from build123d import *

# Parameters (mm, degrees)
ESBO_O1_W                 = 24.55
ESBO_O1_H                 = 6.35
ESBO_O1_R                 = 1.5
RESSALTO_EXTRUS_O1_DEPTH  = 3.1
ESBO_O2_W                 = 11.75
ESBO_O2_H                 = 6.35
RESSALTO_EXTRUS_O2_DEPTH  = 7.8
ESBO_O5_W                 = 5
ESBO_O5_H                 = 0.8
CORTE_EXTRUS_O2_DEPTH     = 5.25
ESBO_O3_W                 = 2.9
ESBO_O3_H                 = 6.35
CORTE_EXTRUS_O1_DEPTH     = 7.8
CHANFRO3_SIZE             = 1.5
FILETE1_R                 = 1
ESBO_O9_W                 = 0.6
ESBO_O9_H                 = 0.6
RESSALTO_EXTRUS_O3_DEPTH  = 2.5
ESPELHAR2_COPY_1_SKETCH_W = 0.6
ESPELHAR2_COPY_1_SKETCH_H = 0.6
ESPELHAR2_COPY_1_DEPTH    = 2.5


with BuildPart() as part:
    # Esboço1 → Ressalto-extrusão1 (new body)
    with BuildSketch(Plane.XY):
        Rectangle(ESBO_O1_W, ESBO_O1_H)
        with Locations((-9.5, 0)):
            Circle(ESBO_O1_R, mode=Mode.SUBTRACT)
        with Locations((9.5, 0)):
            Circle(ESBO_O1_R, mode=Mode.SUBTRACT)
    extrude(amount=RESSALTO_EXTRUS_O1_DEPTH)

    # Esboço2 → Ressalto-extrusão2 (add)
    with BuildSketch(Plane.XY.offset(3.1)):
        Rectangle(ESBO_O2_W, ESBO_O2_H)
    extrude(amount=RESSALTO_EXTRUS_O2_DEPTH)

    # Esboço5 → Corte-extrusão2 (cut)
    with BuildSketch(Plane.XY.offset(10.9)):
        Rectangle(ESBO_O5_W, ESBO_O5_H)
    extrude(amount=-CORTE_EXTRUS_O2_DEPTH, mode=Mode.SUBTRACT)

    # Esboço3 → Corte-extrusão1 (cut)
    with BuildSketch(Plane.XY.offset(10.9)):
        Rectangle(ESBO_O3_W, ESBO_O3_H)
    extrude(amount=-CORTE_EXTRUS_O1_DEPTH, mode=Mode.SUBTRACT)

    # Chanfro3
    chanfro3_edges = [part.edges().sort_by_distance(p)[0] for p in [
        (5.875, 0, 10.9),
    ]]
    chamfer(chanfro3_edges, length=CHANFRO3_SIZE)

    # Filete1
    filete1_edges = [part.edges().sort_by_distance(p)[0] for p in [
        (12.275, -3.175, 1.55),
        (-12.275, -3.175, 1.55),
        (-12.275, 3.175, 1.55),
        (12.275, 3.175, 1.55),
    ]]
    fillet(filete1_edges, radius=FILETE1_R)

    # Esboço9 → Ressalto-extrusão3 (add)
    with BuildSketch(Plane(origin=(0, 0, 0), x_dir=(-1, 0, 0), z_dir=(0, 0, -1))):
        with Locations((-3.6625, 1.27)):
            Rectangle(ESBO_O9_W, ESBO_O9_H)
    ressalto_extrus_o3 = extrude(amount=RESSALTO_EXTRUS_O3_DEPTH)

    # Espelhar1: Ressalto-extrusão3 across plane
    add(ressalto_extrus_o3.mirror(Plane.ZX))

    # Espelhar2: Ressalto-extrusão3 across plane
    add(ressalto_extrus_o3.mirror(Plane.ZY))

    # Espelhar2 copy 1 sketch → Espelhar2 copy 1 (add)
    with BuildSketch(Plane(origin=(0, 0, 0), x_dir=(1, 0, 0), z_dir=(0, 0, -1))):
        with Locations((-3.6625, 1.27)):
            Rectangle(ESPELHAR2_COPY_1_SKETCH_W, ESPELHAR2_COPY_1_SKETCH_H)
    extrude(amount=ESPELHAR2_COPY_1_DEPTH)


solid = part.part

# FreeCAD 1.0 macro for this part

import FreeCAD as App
import Part
import Sketcher


def edges_at(feature, points):
    """Names of the edges that pass closest to the given points."""
    edges = feature.Shape.Edges
    near = lambda p: min(range(len(edges)), key=lambda i: edges[i].distToShape(Part.Vertex(*p))[0])
    return sorted({f"Edge{near(p) + 1}" for p in points})


def add_polygon(sketch, points):
    """Adds a closed chain of lines whose ends are joined by coincident constraints."""
    first, n = sketch.GeometryCount, len(points)
    for a, b in zip(points, points[1:] + points[:1]):
        sketch.addGeometry(Part.LineSegment(App.Vector(*a, 0), App.Vector(*b, 0)), False)
    for i in range(n):
        sketch.addConstraint(Sketcher.Constraint("Coincident", first + i, 2, first + (i + 1) % n, 1))

doc = App.newDocument("Part")
body = doc.addObject("PartDesign::Body", "Body")

sketch1 = doc.addObject("Sketcher::SketchObject", "Sketch")
body.addObject(sketch1)
sketch1.AttachmentSupport = (doc.XY_Plane, [""])
sketch1.MapMode = "FlatFace"
add_polygon(sketch1, [(-12.3, 3.2), (-12.3, -3.2), (12.3, -3.2), (12.3, 3.2)])
sketch1.addGeometry(Part.Circle(App.Vector(-9.5, 0, 0), App.Vector(0, 0, 1), 1.5), False)
sketch1.addGeometry(Part.Circle(App.Vector(9.5, 0, 0), App.Vector(0, 0, 1), 1.5), False)
sketch1.addConstraint([
    Sketcher.Constraint("Vertical", 0),
    Sketcher.Constraint("Horizontal", 1),
    Sketcher.Constraint("Vertical", 2),
    Sketcher.Constraint("Horizontal", 3),
    Sketcher.Constraint("Equal", 4, 5),
    Sketcher.Constraint("Symmetric", 4, 3, 5, 3, -1, 1),
    Sketcher.Constraint("Symmetric", 0, 2, 2, 2, -1, 1),
    Sketcher.Constraint("PointOnObject", 4, 3, -1),
    Sketcher.Constraint("Diameter", 4, 3.0),
    Sketcher.Constraint("DistanceX", 4, 3, 5, 3, 19.0),
    Sketcher.Constraint("DistanceX", 1, 1, 1, 2, 24.55),
    Sketcher.Constraint("DistanceY", 0, 2, 0, 1, 6.35),
])
pad1 = doc.addObject("PartDesign::Pad", "Pad")
body.addObject(pad1)
pad1.Profile = sketch1
pad1.Length = 3.1

sketch2 = doc.addObject("Sketcher::SketchObject", "Sketch001")
body.addObject(sketch2)
sketch2.AttachmentSupport = (doc.XY_Plane, [""])
sketch2.MapMode = "FlatFace"
sketch2.AttachmentOffset = App.Placement(App.Vector(0, 0, 3.1), App.Rotation())
add_polygon(sketch2, [(-6, 3), (-6, -3), (6, -3), (6, 3)])
sketch2.addConstraint([
    Sketcher.Constraint("Vertical", 0),
    Sketcher.Constraint("Horizontal", 1),
    Sketcher.Constraint("Vertical", 2),
    Sketcher.Constraint("Horizontal", 3),
    Sketcher.Constraint("Symmetric", 0, 2, 2, 2, -1, 1),
    Sketcher.Constraint("DistanceX", 1, 1, 1, 2, 11.75),
    Sketcher.Constraint("DistanceY", 0, 2, 0, 1, 6.35),
])
pad2 = doc.addObject("PartDesign::Pad", "Pad001")
body.addObject(pad2)
pad2.Profile = sketch2
pad2.Length = 7.8

sketch3 = doc.addObject("Sketcher::SketchObject", "Sketch002")
body.addObject(sketch3)
sketch3.AttachmentSupport = (doc.XY_Plane, [""])
sketch3.MapMode = "FlatFace"
sketch3.AttachmentOffset = App.Placement(App.Vector(0, 0, 10.9), App.Rotation())
add_polygon(sketch3, [(-2.5, 0.4), (-2.5, -0.4), (2.5, -0.4), (2.5, 0.4)])
sketch3.addConstraint([
    Sketcher.Constraint("Vertical", 0),
    Sketcher.Constraint("Horizontal", 1),
    Sketcher.Constraint("Vertical", 2),
    Sketcher.Constraint("Horizontal", 3),
    Sketcher.Constraint("Symmetric", 0, 2, 2, 2, -1, 1),
    Sketcher.Constraint("DistanceX", 1, 1, 1, 2, 5.0),
    Sketcher.Constraint("DistanceY", 0, 2, 0, 1, 0.8),
])
pocket1 = doc.addObject("PartDesign::Pocket", "Pocket")
body.addObject(pocket1)
pocket1.Profile = sketch3
pocket1.Length = 5.25

sketch4 = doc.addObject("Sketcher::SketchObject", "Sketch003")
body.addObject(sketch4)
sketch4.AttachmentSupport = (doc.XY_Plane, [""])
sketch4.MapMode = "FlatFace"
sketch4.AttachmentOffset = App.Placement(App.Vector(0, 0, 10.9), App.Rotation())
add_polygon(sketch4, [(-1.4, 3.2), (-1.4, -3.2), (1.4, -3.2), (1.4, 3.2)])
sketch4.addConstraint([
    Sketcher.Constraint("Vertical", 0),
    Sketcher.Constraint("Horizontal", 1),
    Sketcher.Constraint("Vertical", 2),
    Sketcher.Constraint("Horizontal", 3),
    Sketcher.Constraint("Symmetric", 0, 2, 2, 2, -1, 1),
    Sketcher.Constraint("DistanceX", 1, 1, 1, 2, 2.9),
    Sketcher.Constraint("DistanceY", 0, 2, 0, 1, 6.35),
])
pocket2 = doc.addObject("PartDesign::Pocket", "Pocket001")
body.addObject(pocket2)
pocket2.Profile = sketch4
pocket2.Length = 7.8
doc.recompute()

chamfer = doc.addObject("PartDesign::Chamfer", "Chamfer")
body.addObject(chamfer)
chamfer.Base = (pocket2, edges_at(pocket2, [(5.875, 0, 10.9)]))
chamfer.Size = 1.5
doc.recompute()

fillet = doc.addObject("PartDesign::Fillet", "Fillet")
body.addObject(fillet)
fillet.Base = (chamfer, edges_at(chamfer, [
    (12.275, -3.175, 1.55),
    (-12.275, -3.175, 1.55),
    (-12.275, 3.175, 1.55),
    (12.275, 3.175, 1.55),
]))
fillet.Radius = 1

sketch5 = doc.addObject("Sketcher::SketchObject", "Sketch004")
body.addObject(sketch5)
sketch5.AttachmentSupport = (doc.XY_Plane, [""])
sketch5.MapMode = "FlatFace"
add_polygon(sketch5, [(4, 1.6), (4, 1), (3.4, 1), (3.4, 1.6)])
sketch5.addConstraint([
    Sketcher.Constraint("Vertical", 0),
    Sketcher.Constraint("Horizontal", 1),
    Sketcher.Constraint("Vertical", 2),
    Sketcher.Constraint("Horizontal", 3),
    Sketcher.Constraint("Equal", 3, 0),
    Sketcher.Constraint("DistanceX", 1, 2, 1, 1, 0.6),
    Sketcher.Constraint("DistanceY", -1, 1, 0, 2, 0.97),
    Sketcher.Constraint("DistanceX", -1, 1, 0, 2, 3.9625),
])
pad3 = doc.addObject("PartDesign::Pad", "Pad002")
body.addObject(pad3)
pad3.Profile = sketch5
pad3.Length = 2.5
pad3.Reversed = True
doc.recompute()

mirrored = doc.addObject("PartDesign::Mirrored", "Mirrored")
body.addObject(mirrored)
mirrored.Originals = [pad3]
mirrored.MirrorPlane = (doc.XZ_Plane, [""])
body.Tip = mirrored
doc.recompute()

mirrored2 = doc.addObject("PartDesign::Mirrored", "Mirrored001")
body.addObject(mirrored2)
mirrored2.Originals = [pad3]
mirrored2.MirrorPlane = (doc.YZ_Plane, [""])
body.Tip = mirrored2

sketch6 = doc.addObject("Sketcher::SketchObject", "Sketch005")
body.addObject(sketch6)
sketch6.AttachmentSupport = (doc.XY_Plane, [""])
sketch6.MapMode = "FlatFace"
add_polygon(sketch6, [(-4, -1.6), (-4, -1), (-3.4, -1), (-3.4, -1.6)])
sketch6.addConstraint([
    Sketcher.Constraint("Vertical", 0),
    Sketcher.Constraint("Horizontal", 1),
    Sketcher.Constraint("Vertical", 2),
    Sketcher.Constraint("Horizontal", 3),
    Sketcher.Constraint("Equal", 3, 0),
    Sketcher.Constraint("DistanceX", 1, 1, 1, 2, 0.6),
    Sketcher.Constraint("DistanceY", 0, 2, -1, 1, 0.97),
    Sketcher.Constraint("DistanceX", 0, 2, -1, 1, 3.9625),
])
pad4 = doc.addObject("PartDesign::Pad", "Pad003")
body.addObject(pad4)
pad4.Profile = sketch6
pad4.Length = 2.5
pad4.Reversed = True

doc.recompute()
